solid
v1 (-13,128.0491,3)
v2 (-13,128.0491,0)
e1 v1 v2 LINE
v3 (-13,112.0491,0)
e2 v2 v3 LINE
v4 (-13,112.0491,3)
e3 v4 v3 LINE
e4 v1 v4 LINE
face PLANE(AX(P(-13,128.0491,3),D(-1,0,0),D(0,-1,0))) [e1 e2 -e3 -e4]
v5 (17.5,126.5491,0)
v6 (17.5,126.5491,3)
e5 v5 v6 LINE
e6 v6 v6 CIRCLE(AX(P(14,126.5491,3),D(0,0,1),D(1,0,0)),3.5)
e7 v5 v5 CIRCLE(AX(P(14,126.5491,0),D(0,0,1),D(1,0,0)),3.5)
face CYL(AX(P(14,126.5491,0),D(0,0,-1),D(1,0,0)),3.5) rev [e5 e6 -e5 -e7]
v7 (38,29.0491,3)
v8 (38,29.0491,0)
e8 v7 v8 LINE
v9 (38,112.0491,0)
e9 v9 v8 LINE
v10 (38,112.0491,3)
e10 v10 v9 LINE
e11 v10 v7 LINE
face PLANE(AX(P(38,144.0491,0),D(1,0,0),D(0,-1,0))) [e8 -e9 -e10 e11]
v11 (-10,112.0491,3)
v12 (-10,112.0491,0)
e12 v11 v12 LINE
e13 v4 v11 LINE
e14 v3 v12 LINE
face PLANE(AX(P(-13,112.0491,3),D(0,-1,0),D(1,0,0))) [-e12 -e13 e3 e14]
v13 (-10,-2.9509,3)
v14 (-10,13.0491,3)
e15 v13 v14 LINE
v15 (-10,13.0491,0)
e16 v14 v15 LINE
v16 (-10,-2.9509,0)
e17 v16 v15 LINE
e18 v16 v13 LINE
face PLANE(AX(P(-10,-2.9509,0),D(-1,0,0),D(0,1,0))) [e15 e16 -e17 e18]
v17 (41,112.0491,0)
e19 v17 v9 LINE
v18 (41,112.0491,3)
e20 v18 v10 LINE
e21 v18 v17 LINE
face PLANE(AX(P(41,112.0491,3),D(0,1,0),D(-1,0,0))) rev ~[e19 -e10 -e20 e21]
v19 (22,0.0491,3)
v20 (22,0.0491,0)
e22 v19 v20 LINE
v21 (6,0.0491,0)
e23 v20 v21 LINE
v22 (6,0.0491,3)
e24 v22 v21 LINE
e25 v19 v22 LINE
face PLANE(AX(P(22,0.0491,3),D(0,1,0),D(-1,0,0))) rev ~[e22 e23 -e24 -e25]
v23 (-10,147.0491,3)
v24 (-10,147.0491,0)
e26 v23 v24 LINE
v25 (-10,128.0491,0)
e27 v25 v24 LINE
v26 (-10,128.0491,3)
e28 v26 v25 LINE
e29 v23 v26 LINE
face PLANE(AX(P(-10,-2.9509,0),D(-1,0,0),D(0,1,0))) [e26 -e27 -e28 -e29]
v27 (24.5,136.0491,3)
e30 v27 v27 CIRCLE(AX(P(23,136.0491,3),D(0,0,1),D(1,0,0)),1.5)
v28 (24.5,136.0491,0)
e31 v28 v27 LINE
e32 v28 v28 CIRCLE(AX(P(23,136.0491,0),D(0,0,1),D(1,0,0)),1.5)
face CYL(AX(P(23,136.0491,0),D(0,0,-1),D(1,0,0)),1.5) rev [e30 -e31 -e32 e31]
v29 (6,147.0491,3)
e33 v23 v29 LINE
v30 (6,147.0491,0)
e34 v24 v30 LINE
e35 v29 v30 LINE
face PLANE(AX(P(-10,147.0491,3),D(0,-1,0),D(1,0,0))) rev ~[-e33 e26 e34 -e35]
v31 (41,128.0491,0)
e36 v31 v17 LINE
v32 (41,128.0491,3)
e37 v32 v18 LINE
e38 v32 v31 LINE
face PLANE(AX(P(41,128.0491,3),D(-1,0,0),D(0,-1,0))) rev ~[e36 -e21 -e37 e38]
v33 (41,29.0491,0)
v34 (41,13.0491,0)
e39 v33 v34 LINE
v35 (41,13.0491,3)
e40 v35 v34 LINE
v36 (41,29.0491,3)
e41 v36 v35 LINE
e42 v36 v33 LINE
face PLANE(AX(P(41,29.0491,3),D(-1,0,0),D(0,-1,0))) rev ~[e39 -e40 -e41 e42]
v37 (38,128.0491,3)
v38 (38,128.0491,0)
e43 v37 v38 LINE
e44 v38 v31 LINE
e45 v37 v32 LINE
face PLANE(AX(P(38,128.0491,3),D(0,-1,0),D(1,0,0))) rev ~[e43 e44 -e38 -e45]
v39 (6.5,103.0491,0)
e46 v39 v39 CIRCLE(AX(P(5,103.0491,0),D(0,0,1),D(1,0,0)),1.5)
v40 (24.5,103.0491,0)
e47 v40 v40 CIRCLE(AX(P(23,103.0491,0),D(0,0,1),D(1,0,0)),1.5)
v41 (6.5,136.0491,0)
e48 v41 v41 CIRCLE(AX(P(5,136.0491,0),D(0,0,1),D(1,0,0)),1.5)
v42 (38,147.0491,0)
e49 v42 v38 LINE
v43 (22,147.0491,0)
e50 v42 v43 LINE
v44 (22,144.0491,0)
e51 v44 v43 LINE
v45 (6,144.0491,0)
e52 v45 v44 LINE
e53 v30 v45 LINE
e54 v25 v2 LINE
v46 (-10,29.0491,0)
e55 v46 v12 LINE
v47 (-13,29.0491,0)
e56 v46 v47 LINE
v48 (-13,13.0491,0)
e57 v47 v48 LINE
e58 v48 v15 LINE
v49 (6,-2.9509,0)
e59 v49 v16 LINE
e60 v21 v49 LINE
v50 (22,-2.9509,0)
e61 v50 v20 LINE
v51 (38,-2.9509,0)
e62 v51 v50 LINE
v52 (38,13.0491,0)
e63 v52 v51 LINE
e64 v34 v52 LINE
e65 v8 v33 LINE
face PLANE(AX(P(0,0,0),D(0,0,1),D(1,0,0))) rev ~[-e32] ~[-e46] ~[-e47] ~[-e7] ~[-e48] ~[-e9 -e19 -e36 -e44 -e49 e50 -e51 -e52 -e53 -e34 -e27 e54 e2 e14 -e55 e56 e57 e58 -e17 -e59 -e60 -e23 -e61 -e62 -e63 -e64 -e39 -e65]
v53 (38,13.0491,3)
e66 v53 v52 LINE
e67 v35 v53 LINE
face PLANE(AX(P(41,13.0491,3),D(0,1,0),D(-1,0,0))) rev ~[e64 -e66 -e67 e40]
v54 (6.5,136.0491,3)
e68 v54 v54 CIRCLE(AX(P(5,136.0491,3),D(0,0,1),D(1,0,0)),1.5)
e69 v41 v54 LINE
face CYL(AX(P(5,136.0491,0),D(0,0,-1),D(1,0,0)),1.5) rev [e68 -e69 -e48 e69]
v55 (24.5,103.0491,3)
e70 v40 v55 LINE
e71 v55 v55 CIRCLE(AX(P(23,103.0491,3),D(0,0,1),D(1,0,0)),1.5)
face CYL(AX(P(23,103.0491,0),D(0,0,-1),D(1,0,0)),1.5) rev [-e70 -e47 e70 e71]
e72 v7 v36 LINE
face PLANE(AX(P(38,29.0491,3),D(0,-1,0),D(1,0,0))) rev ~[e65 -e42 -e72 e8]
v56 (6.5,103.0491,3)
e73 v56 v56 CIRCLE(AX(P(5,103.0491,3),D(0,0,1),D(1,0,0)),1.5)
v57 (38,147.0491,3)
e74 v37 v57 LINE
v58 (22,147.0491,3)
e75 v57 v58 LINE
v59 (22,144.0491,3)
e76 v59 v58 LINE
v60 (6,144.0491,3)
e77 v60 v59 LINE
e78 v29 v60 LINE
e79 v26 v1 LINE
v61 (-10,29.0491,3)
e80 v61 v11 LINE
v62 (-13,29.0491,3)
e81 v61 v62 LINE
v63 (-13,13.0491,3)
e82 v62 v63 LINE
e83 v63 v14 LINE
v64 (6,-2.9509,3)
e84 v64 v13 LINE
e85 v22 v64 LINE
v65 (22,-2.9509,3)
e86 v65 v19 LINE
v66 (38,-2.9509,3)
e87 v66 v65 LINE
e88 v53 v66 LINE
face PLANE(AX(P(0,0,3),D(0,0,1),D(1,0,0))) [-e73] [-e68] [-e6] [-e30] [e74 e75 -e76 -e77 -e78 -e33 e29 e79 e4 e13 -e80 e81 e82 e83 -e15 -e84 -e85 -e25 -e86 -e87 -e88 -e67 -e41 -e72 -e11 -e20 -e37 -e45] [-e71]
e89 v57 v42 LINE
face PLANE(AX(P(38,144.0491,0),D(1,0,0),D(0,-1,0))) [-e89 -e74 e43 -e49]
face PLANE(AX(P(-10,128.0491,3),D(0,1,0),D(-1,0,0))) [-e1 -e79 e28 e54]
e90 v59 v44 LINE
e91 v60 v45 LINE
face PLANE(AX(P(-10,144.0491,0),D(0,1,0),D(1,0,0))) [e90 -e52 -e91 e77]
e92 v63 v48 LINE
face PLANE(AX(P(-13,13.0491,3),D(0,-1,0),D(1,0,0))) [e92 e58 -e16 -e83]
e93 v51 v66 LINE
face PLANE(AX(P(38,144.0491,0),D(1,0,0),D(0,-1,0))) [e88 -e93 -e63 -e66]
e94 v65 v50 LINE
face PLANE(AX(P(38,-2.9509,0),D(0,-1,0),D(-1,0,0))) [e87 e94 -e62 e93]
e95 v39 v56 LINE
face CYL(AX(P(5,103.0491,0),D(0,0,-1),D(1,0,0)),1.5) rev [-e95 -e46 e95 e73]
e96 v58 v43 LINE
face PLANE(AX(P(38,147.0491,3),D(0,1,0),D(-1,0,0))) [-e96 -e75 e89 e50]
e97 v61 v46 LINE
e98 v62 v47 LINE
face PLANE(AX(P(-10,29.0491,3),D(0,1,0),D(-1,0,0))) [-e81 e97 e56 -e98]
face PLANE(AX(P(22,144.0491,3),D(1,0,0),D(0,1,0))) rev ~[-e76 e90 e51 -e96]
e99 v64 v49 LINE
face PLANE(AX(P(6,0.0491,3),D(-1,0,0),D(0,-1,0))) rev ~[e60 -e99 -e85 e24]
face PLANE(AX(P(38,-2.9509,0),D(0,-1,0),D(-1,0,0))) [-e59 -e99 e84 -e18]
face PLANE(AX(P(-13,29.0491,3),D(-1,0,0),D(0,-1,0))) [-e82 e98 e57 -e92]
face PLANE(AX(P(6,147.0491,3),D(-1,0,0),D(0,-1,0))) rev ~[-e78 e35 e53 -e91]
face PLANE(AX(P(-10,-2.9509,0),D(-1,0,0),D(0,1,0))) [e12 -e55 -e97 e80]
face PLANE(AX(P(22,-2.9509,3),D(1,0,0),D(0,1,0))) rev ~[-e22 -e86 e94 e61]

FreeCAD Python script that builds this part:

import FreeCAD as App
import Part
import Sketcher

doc = App.newDocument("Part")
body = doc.addObject("PartDesign::Body", "Body")

sketch1 = body.newObject("Sketcher::SketchObject", "Sketch")
sketch1.AttachmentSupport = (doc.getObject("XY_Plane"), [""])
sketch1.MapMode = "FlatFace"
sketch1.addGeometry([
    Part.LineSegment(App.Vector(38, 144, 0), App.Vector(-10, 144, 0)),
    Part.LineSegment(App.Vector(-10, 144, 0), App.Vector(-10, -3, 0)),
    Part.LineSegment(App.Vector(-10, -3, 0), App.Vector(38, -3, 0)),
    Part.LineSegment(App.Vector(38, -3, 0), App.Vector(38, 144, 0)),
    Part.Circle(App.Vector(5, 103, 0), App.Vector(0, 0, 1), 1.5),
    Part.Circle(App.Vector(5, 136, 0), App.Vector(0, 0, 1), 1.5),
    Part.Circle(App.Vector(23, 103, 0), App.Vector(0, 0, 1), 1.5),
    Part.Circle(App.Vector(14, 126.5, 0), App.Vector(0, 0, 1), 3.5),
    Part.Circle(App.Vector(23, 136, 0), App.Vector(0, 0, 1), 1.5),
], False)
sketch1.addConstraint([
    Sketcher.Constraint("Coincident", 0, 2, 1, 1),
    Sketcher.Constraint("Coincident", 1, 2, 2, 1),
    Sketcher.Constraint("Coincident", 2, 2, 3, 1),
    Sketcher.Constraint("Coincident", 3, 2, 0, 1),
    Sketcher.Constraint("Horizontal", 0),
    Sketcher.Constraint("Vertical", 1),
    Sketcher.Constraint("Horizontal", 2),
    Sketcher.Constraint("Vertical", 3),
    Sketcher.Constraint("Equal", 4, 5),
    Sketcher.Constraint("Equal", 5, 6),
    Sketcher.Constraint("Equal", 6, 8),
    Sketcher.Constraint("Horizontal", 4, 3, 6, 3),
    Sketcher.Constraint("Horizontal", 5, 3, 8, 3),
    Sketcher.Constraint("Vertical", 4, 3, 5, 3),
    Sketcher.Constraint("Vertical", 6, 3, 8, 3),
    Sketcher.Constraint("Diameter", 4, 3.0),
    Sketcher.Constraint("Diameter", 7, 7.0),
    Sketcher.Constraint("DistanceY", 1, 2, 1, 1, 147.0),
    Sketcher.Constraint("DistanceX", 0, 2, -1, 1, 10.0),
    Sketcher.Constraint("DistanceY", 4, 3, 5, 3, 33.0),
    Sketcher.Constraint("DistanceX", 4, 3, 6, 3, 18.0),
    Sketcher.Constraint("DistanceX", 5, 3, 7, 3, 9.0),
    Sketcher.Constraint("DistanceX", 0, 2, 5, 3, 15.0),
    Sketcher.Constraint("DistanceY", 5, 3, 0, 2, 8.0),
    Sketcher.Constraint("DistanceX", 6, 3, 2, 2, 15.0),
    Sketcher.Constraint("DistanceY", 7, 3, 5, 3, 9.5),
    Sketcher.Constraint("DistanceY", 1, 2, -1, 1, 2.951),
])
pad1 = body.newObject("PartDesign::Pad", "Pad")
pad1.Profile = sketch1
pad1.Length = 3

sketch2 = body.newObject("Sketcher::SketchObject", "Sketch001")
sketch2.AttachmentSupport = (doc.getObject("XY_Plane"), [""])
sketch2.MapMode = "FlatFace"
sketch2.AttachmentOffset = App.Placement(App.Vector(0, 0, 3), App.Rotation())
sketch2.addGeometry([
    Part.LineSegment(App.Vector(-10, 147, 0), App.Vector(-10, 144, 0)),
    Part.LineSegment(App.Vector(-10, 144, 0), App.Vector(6, 144, 0)),
    Part.LineSegment(App.Vector(6, 144, 0), App.Vector(6, 147, 0)),
    Part.LineSegment(App.Vector(6, 147, 0), App.Vector(-10, 147, 0)),
    Part.LineSegment(App.Vector(-10, 112, 0), App.Vector(-10, 128, 0)),
    Part.LineSegment(App.Vector(-10, 128, 0), App.Vector(-13, 128, 0)),
    Part.LineSegment(App.Vector(-13, 128, 0), App.Vector(-13, 112, 0)),
    Part.LineSegment(App.Vector(-13, 112, 0), App.Vector(-10, 112, 0)),
    Part.LineSegment(App.Vector(22, 147, 0), App.Vector(22, 144, 0)),
    Part.LineSegment(App.Vector(22, 144, 0), App.Vector(38, 144, 0)),
    Part.LineSegment(App.Vector(38, 144, 0), App.Vector(38, 147, 0)),
    Part.LineSegment(App.Vector(38, 147, 0), App.Vector(22, 147, 0)),
    Part.LineSegment(App.Vector(-10, 13, 0), App.Vector(-10, 29, 0)),
    Part.LineSegment(App.Vector(-10, 29, 0), App.Vector(-13, 29, 0)),
    Part.LineSegment(App.Vector(-13, 29, 0), App.Vector(-13, 13, 0)),
    Part.LineSegment(App.Vector(-13, 13, 0), App.Vector(-10, 13, 0)),
    Part.LineSegment(App.Vector(41, 128, 0), App.Vector(38, 128, 0)),
    Part.LineSegment(App.Vector(38, 128, 0), App.Vector(38, 112, 0)),
    Part.LineSegment(App.Vector(38, 112, 0), App.Vector(41, 112, 0)),
    Part.LineSegment(App.Vector(41, 112, 0), App.Vector(41, 128, 0)),
    Part.LineSegment(App.Vector(41, 29, 0), App.Vector(38, 29, 0)),
    Part.LineSegment(App.Vector(38, 29, 0), App.Vector(38, 13, 0)),
    Part.LineSegment(App.Vector(38, 13, 0), App.Vector(41, 13, 0)),
    Part.LineSegment(App.Vector(41, 13, 0), App.Vector(41, 29, 0)),
], False)
sketch2.addConstraint([
    Sketcher.Constraint("Coincident", 0, 2, 1, 1),
    Sketcher.Constraint("Coincident", 1, 2, 2, 1),
    Sketcher.Constraint("Coincident", 2, 2, 3, 1),
    Sketcher.Constraint("Coincident", 3, 2, 0, 1),
    Sketcher.Constraint("Coincident", 4, 2, 5, 1),
    Sketcher.Constraint("Coincident", 5, 2, 6, 1),
    Sketcher.Constraint("Coincident", 6, 2, 7, 1),
    Sketcher.Constraint("Coincident", 7, 2, 4, 1),
    Sketcher.Constraint("Coincident", 8, 2, 9, 1),
    Sketcher.Constraint("Coincident", 9, 2, 10, 1),
    Sketcher.Constraint("Coincident", 10, 2, 11, 1),
    Sketcher.Constraint("Coincident", 11, 2, 8, 1),
    Sketcher.Constraint("Coincident", 12, 2, 13, 1),
    Sketcher.Constraint("Coincident", 13, 2, 14, 1),
    Sketcher.Constraint("Coincident", 14, 2, 15, 1),
    Sketcher.Constraint("Coincident", 15, 2, 12, 1),
    Sketcher.Constraint("Coincident", 16, 2, 17, 1),
    Sketcher.Constraint("Coincident", 17, 2, 18, 1),
    Sketcher.Constraint("Coincident", 18, 2, 19, 1),
    Sketcher.Constraint("Coincident", 19, 2, 16, 1),
    Sketcher.Constraint("Coincident", 20, 2, 21, 1),
    Sketcher.Constraint("Coincident", 21, 2, 22, 1),
    Sketcher.Constraint("Coincident", 22, 2, 23, 1),
    Sketcher.Constraint("Coincident", 23, 2, 20, 1),
    Sketcher.Constraint("Vertical", 0),
    Sketcher.Constraint("Horizontal", 1),
    Sketcher.Constraint("Vertical", 2),
    Sketcher.Constraint("Horizontal", 3),
    Sketcher.Constraint("Vertical", 4),
    Sketcher.Constraint("Horizontal", 5),
    Sketcher.Constraint("Vertical", 6),
    Sketcher.Constraint("Horizontal", 7),
    Sketcher.Constraint("Vertical", 8),
    Sketcher.Constraint("Horizontal", 9),
    Sketcher.Constraint("Vertical", 10),
    Sketcher.Constraint("Horizontal", 11),
    Sketcher.Constraint("Vertical", 12),
    Sketcher.Constraint("Horizontal", 13),
    Sketcher.Constraint("Vertical", 14),
    Sketcher.Constraint("Horizontal", 15),
    Sketcher.Constraint("Horizontal", 16),
    Sketcher.Constraint("Vertical", 17),
    Sketcher.Constraint("Horizontal", 18),
    Sketcher.Constraint("Vertical", 19),
    Sketcher.Constraint("Horizontal", 20),
    Sketcher.Constraint("Vertical", 21),
    Sketcher.Constraint("Horizontal", 22),
    Sketcher.Constraint("Vertical", 23),
    Sketcher.Constraint("Horizontal", 1, 2, 8, 2),
    Sketcher.Constraint("Horizontal", 3, 2, 10, 2),
    Sketcher.Constraint("Horizontal", 5, 2, 16, 2),
    Sketcher.Constraint("Horizontal", 7, 2, 17, 2),
    Sketcher.Constraint("Horizontal", 13, 2, 20, 2),
    Sketcher.Constraint("Horizontal", 15, 2, 21, 2),
    Sketcher.Constraint("Vertical", 3, 2, 4, 2),
    Sketcher.Constraint("Vertical", 7, 2, 12, 2),
    Sketcher.Constraint("Vertical", 6, 2, 13, 2),
    Sketcher.Constraint("Vertical", 10, 2, 16, 2),
    Sketcher.Constraint("Vertical", 17, 2, 20, 2),
    Sketcher.Constraint("Vertical", 19, 2, 22, 2),
    Sketcher.Constraint("Equal", 3, 9),
    Sketcher.Constraint("Equal", 15, 16),
    Sketcher.Constraint("Equal", 22, 0),
    Sketcher.Constraint("Equal", 11, 4),
    Sketcher.Constraint("Equal", 6, 12),
    Sketcher.Constraint("DistanceX", 1, 1, 1, 2, 16.0),
    Sketcher.Constraint("DistanceX", 5, 2, 5, 1, 3.0),
    Sketcher.Constraint("DistanceY", 4, 2, 0, 2, 16.0),
    Sketcher.Constraint("DistanceX", 1, 2, 8, 2, 16.0),
    Sketcher.Constraint("DistanceX", 0, 2, -1, 1, 10.0),
    Sketcher.Constraint("DistanceY", 12, 2, 7, 2, 83.0),
    Sketcher.Constraint("DistanceY", -1, 1, 0, 2, 144.049),
])
pad2 = body.newObject("PartDesign::Pad", "Pad001")
pad2.Profile = sketch2
pad2.Length = 3
pad2.Reversed = True

sketch3 = body.newObject("Sketcher::SketchObject", "Sketch002")
sketch3.AttachmentSupport = (doc.getObject("XY_Plane"), [""])
sketch3.MapMode = "FlatFace"
sketch3.AttachmentOffset = App.Placement(App.Vector(0, 0, 3), App.Rotation())
sketch3.addGeometry([
    Part.LineSegment(App.Vector(6, 0, 0), App.Vector(6, -3, 0)),
    Part.LineSegment(App.Vector(6, -3, 0), App.Vector(22, -3, 0)),
    Part.LineSegment(App.Vector(22, -3, 0), App.Vector(22, 0, 0)),
    Part.LineSegment(App.Vector(22, 0, 0), App.Vector(6, 0, 0)),
], False)
sketch3.addConstraint([
    Sketcher.Constraint("Coincident", 0, 2, 1, 1),
    Sketcher.Constraint("Coincident", 1, 2, 2, 1),
    Sketcher.Constraint("Coincident", 2, 2, 3, 1),
    Sketcher.Constraint("Coincident", 3, 2, 0, 1),
    Sketcher.Constraint("Vertical", 0),
    Sketcher.Constraint("Horizontal", 1),
    Sketcher.Constraint("Vertical", 2),
    Sketcher.Constraint("Horizontal", 3),
    Sketcher.Constraint("DistanceX", 1, 1, 1, 2, 16.0),
    Sketcher.Constraint("DistanceY", 0, 2, 0, 1, 3.0),
    Sketcher.Constraint("DistanceX", -1, 1, 0, 2, 6.0),
    Sketcher.Constraint("DistanceY", 0, 2, -1, 1, 2.951),
])
pocket1 = body.newObject("PartDesign::Pocket", "Pocket")
pocket1.Profile = sketch3
pocket1.Length = 3

doc.recompute()
